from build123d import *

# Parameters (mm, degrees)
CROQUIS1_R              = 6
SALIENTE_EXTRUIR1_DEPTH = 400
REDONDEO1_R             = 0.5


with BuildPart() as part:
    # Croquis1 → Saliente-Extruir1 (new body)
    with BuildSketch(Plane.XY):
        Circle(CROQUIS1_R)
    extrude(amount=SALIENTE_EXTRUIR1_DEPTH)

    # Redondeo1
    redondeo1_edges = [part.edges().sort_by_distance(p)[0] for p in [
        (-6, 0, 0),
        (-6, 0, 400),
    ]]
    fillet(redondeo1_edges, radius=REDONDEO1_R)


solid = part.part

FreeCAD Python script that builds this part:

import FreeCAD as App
import Part
import Sketcher

V = App.Vector
Q = App.Units.Quantity


def edges_at(feature, points):
    """Names of the edges that pass closest to the given points."""
    edges = feature.Shape.Edges
    near = lambda p: min(range(len(edges)), key=lambda i: edges[i].distToShape(Part.Vertex(*p))[0])
    return sorted({f"Edge{near(p) + 1}" for p in points})

doc = App.newDocument("Part")
body = doc.addObject("PartDesign::Body", "Body")

# Sketch on XY plane
sketch1 = doc.addObject("Sketcher::SketchObject", "Sketch")
body.addObject(sketch1)
sketch1.AttachmentSupport = (doc.XY_Plane, [""])
sketch1.MapMode = "FlatFace"
sketch1.addGeometry(Part.Circle(V(0, 0, 0), V(0, 0, 1), 6), False)
sketch1.addConstraint([
    Sketcher.Constraint("Coincident", 0, 3, -1, 1),
    Sketcher.Constraint("Diameter", 0, Q("12 mm")),
])
pad1 = doc.addObject("PartDesign::Pad", "Pad")
body.addObject(pad1)
pad1.Profile = sketch1
pad1.Length = 400
doc.recompute()

fillet = doc.addObject("PartDesign::Fillet", "Fillet")
body.addObject(fillet)
fillet.Base = (pad1, edges_at(pad1, [(-6, 0, 0), (-6, 0, 400)]))
fillet.Radius = 0.5

doc.recompute()
